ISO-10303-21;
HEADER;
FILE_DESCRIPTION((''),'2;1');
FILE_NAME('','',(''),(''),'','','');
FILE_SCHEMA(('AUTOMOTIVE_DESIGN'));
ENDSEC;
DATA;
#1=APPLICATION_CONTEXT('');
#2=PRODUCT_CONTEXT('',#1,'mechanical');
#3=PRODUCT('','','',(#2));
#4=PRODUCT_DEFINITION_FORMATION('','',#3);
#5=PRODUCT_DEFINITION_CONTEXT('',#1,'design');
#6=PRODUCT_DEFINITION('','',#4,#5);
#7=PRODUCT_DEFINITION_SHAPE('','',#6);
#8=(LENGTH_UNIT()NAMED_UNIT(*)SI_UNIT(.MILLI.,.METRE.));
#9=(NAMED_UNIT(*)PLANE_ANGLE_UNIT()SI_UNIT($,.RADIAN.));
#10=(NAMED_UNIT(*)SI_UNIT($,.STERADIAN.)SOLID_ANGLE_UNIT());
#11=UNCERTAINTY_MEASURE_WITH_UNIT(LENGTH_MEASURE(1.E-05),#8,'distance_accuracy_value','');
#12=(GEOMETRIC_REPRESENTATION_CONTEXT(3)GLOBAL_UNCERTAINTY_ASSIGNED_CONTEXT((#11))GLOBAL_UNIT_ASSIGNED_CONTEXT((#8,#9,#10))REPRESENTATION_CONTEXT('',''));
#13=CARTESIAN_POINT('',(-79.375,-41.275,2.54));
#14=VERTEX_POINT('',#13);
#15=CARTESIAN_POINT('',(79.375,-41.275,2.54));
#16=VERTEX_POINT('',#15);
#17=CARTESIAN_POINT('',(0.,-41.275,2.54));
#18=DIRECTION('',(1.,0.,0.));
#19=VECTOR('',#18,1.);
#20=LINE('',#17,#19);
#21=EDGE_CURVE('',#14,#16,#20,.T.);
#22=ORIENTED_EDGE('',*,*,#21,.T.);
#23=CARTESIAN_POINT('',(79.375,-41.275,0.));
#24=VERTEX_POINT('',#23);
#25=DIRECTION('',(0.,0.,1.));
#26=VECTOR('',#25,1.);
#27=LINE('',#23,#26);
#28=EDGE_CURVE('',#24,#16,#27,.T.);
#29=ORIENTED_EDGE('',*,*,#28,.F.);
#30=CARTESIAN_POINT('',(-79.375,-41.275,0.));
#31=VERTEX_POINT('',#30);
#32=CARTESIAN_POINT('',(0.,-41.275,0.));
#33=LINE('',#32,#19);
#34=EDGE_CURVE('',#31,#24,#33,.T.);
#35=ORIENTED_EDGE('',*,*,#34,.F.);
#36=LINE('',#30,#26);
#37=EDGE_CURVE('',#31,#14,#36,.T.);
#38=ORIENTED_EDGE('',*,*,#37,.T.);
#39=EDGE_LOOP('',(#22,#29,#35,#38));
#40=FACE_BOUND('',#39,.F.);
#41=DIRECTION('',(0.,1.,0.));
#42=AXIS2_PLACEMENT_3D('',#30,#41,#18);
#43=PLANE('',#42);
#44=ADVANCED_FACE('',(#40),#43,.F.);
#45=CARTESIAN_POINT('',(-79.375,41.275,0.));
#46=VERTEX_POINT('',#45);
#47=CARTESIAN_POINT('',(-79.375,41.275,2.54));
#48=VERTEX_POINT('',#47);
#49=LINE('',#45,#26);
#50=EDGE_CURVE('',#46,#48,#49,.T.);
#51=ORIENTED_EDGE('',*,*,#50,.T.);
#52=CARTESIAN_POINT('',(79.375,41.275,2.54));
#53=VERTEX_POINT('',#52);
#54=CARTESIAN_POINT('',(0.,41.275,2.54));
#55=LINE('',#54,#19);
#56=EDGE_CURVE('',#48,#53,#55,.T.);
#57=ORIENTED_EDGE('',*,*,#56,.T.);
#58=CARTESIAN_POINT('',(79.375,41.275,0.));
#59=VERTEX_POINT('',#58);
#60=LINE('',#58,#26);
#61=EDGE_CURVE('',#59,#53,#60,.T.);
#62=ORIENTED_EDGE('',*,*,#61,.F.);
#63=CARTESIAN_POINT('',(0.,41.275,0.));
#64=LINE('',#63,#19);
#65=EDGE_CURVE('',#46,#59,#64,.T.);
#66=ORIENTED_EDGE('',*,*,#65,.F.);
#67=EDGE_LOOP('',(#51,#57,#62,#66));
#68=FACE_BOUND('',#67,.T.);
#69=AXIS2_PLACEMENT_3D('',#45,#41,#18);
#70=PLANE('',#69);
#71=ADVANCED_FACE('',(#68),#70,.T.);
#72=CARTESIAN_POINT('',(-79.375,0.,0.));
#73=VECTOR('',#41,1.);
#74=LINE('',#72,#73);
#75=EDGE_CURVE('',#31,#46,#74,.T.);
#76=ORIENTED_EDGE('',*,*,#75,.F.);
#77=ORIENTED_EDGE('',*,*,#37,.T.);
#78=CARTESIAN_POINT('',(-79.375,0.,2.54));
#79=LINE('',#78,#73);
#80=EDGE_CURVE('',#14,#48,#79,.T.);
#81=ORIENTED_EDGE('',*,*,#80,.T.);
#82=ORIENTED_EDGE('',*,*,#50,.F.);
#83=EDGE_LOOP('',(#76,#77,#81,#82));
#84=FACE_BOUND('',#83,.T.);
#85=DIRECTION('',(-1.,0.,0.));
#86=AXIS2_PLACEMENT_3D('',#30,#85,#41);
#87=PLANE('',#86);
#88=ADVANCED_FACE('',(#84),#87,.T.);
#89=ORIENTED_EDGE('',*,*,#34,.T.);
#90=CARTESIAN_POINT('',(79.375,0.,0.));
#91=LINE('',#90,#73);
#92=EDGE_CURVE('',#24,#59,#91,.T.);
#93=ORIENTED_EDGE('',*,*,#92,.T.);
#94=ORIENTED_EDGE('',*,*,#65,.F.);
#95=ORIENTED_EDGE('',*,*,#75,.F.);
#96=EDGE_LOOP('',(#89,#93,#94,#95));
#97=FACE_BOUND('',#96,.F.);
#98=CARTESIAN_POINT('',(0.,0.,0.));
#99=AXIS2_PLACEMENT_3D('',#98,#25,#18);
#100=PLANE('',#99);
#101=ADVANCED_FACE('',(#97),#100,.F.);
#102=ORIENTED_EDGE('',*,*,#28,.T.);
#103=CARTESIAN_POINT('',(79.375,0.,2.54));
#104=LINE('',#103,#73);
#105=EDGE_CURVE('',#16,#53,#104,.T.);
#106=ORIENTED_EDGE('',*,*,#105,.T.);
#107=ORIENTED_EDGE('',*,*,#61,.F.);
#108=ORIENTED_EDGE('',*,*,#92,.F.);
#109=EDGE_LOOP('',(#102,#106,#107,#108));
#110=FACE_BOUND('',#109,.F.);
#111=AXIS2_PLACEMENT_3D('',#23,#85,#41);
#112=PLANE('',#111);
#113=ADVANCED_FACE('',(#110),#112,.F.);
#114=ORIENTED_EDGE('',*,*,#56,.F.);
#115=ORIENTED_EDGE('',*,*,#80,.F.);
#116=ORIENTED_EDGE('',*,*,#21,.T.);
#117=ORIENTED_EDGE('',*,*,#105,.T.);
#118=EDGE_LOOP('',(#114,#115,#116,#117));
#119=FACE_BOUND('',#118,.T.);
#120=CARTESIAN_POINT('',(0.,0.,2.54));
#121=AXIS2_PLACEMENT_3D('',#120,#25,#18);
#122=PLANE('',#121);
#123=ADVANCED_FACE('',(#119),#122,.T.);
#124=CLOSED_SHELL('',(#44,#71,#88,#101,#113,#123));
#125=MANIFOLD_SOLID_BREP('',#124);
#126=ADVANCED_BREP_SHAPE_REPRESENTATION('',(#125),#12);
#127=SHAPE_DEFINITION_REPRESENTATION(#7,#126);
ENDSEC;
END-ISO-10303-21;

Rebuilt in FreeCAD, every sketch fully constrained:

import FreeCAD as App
import Part
import Sketcher
Q = App.Units.Quantity

doc = App.newDocument("Part")
params = doc.addObject("Spreadsheet::Sheet", "Params")
for row, (alias, value) in enumerate([
    ("sketch1_width", "6.25 in"),
    ("sketch1_height", "3.25 in"),
    ("pad1_length", "0.1 in"),
], start=1):
    params.set(f"A{row}", alias)
    params.set(f"B{row}", "=" + value)
    params.setAlias(f"B{row}", alias)

body = doc.addObject("PartDesign::Body", "Body")

sketch1 = body.newObject("Sketcher::SketchObject", "Sketch")
sketch1.AttachmentSupport = (doc.getObject("XY_Plane"), [""])
sketch1.MapMode = "FlatFace"
sketch1.addGeometry(Part.LineSegment(App.Vector(-79, 41, 0), App.Vector(-79, -41, 0)), False)
sketch1.addGeometry(Part.LineSegment(App.Vector(-79, -41, 0), App.Vector(79, -41, 0)), False)
sketch1.addGeometry(Part.LineSegment(App.Vector(79, -41, 0), App.Vector(79, 41, 0)), False)
sketch1.addGeometry(Part.LineSegment(App.Vector(79, 41, 0), App.Vector(-79, 41, 0)), False)
sketch1.addConstraint(Sketcher.Constraint("Coincident", 0, 2, 1, 1))
sketch1.addConstraint(Sketcher.Constraint("Coincident", 1, 2, 2, 1))
sketch1.addConstraint(Sketcher.Constraint("Coincident", 2, 2, 3, 1))
sketch1.addConstraint(Sketcher.Constraint("Coincident", 3, 2, 0, 1))
sketch1.addConstraint(Sketcher.Constraint("Vertical", 0))
sketch1.addConstraint(Sketcher.Constraint("Horizontal", 1))
sketch1.addConstraint(Sketcher.Constraint("Vertical", 2))
sketch1.addConstraint(Sketcher.Constraint("Horizontal", 3))
sketch1.addConstraint(Sketcher.Constraint("Symmetric", 0, 2, 2, 2, -1, 1))
sketch1.addConstraint(Sketcher.Constraint("DistanceX", 1, 1, 1, 2, Q("6.25 in")))
sketch1.addConstraint(Sketcher.Constraint("DistanceY", 0, 2, 0, 1, Q("3.25 in")))
sketch1.setExpression("Constraints[9]", "Params.sketch1_width")
sketch1.setExpression("Constraints[10]", "Params.sketch1_height")
pad1 = body.newObject("PartDesign::Pad", "Pad")
pad1.Profile = sketch1
pad1.setExpression("Length", "Params.pad1_length")

doc.recompute()
